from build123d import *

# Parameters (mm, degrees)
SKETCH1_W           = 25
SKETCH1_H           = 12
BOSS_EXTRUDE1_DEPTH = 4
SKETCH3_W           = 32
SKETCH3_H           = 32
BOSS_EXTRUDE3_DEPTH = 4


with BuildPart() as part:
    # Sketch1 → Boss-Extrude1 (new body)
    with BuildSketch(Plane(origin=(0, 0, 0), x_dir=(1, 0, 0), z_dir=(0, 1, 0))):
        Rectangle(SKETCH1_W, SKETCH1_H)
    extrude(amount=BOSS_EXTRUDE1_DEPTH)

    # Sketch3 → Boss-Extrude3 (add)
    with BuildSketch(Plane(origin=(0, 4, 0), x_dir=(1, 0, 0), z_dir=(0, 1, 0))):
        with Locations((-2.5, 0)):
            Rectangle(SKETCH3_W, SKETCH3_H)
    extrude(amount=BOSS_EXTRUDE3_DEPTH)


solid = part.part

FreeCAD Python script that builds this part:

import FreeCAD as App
import Part
import Sketcher

V = App.Vector

doc = App.newDocument("Part")
params = doc.addObject("Spreadsheet::Sheet", "Params")
for row, (alias, value) in enumerate([
    ("sketch1_width", "25 mm"),
    ("sketch1_height", "12 mm"),
    ("pad1_length", "4 mm"),
    ("sketch2_width", "32 mm"),
    ("pad2_length", "4 mm"),
], start=1):
    params.set(f"A{row}", alias)
    params.set(f"B{row}", "=" + value)
    params.setAlias(f"B{row}", alias)

body = doc.addObject("PartDesign::Body", "Body")

# Sketch on XZ plane
sketch1 = body.newObject("Sketcher::SketchObject", "Sketch")
sketch1.AttachmentSupport = (doc.getObject("XZ_Plane"), [""])
sketch1.MapMode = "FlatFace"
sketch1.addGeometry(Part.LineSegment(V(-12, -6, 0), V(-12, 6, 0)), False)
sketch1.addGeometry(Part.LineSegment(V(-12, 6, 0), V(12, 6, 0)), False)
sketch1.addGeometry(Part.LineSegment(V(12, 6, 0), V(12, -6, 0)), False)
sketch1.addGeometry(Part.LineSegment(V(12, -6, 0), V(-12, -6, 0)), False)
sketch1.addConstraint(Sketcher.Constraint("Coincident", 0, 2, 1, 1))
sketch1.addConstraint(Sketcher.Constraint("Coincident", 1, 2, 2, 1))
sketch1.addConstraint(Sketcher.Constraint("Coincident", 2, 2, 3, 1))
sketch1.addConstraint(Sketcher.Constraint("Coincident", 3, 2, 0, 1))
sketch1.addConstraint(Sketcher.Constraint("Vertical", 0))
sketch1.addConstraint(Sketcher.Constraint("Horizontal", 1))
sketch1.addConstraint(Sketcher.Constraint("Vertical", 2))
sketch1.addConstraint(Sketcher.Constraint("Horizontal", 3))
sketch1.addConstraint(Sketcher.Constraint("Symmetric", 0, 2, 2, 2, -1, 1))
sketch1.addConstraint(Sketcher.Constraint("DistanceX", 1, 1, 1, 2, 25.0))
sketch1.addConstraint(Sketcher.Constraint("DistanceY", 0, 1, 0, 2, 12.0))
sketch1.setExpression("Constraints[9]", "Params.sketch1_width")
sketch1.setExpression("Constraints[10]", "Params.sketch1_height")
pad1 = body.newObject("PartDesign::Pad", "Pad")
pad1.Profile = sketch1
pad1.setExpression("Length", "Params.pad1_length")
pad1.Reversed = True

# Sketch on XZ plane
sketch2 = body.newObject("Sketcher::SketchObject", "Sketch001")
sketch2.AttachmentSupport = (doc.getObject("XZ_Plane"), [""])
sketch2.MapMode = "FlatFace"
sketch2.AttachmentOffset = App.Placement(V(0, 0, -4), App.Rotation())
sketch2.addGeometry(Part.LineSegment(V(-18, -16, 0), V(-18, 16, 0)), False)
sketch2.addGeometry(Part.LineSegment(V(-18, 16, 0), V(14, 16, 0)), False)
sketch2.addGeometry(Part.LineSegment(V(14, 16, 0), V(14, -16, 0)), False)
sketch2.addGeometry(Part.LineSegment(V(14, -16, 0), V(-18, -16, 0)), False)
sketch2.addConstraint(Sketcher.Constraint("Coincident", 0, 2, 1, 1))
sketch2.addConstraint(Sketcher.Constraint("Coincident", 1, 2, 2, 1))
sketch2.addConstraint(Sketcher.Constraint("Coincident", 2, 2, 3, 1))
sketch2.addConstraint(Sketcher.Constraint("Coincident", 3, 2, 0, 1))
sketch2.addConstraint(Sketcher.Constraint("Vertical", 0))
sketch2.addConstraint(Sketcher.Constraint("Horizontal", 1))
sketch2.addConstraint(Sketcher.Constraint("Vertical", 2))
sketch2.addConstraint(Sketcher.Constraint("Horizontal", 3))
sketch2.addConstraint(Sketcher.Constraint("Equal", 3, 0))
sketch2.addConstraint(Sketcher.Constraint("DistanceX", 1, 1, 1, 2, 32.0))
sketch2.addConstraint(Sketcher.Constraint("DistanceY", -1, 1, 0, 2, 16.0))
sketch2.addConstraint(Sketcher.Constraint("DistanceX", 0, 2, -1, 1, 18.5))
sketch2.setExpression("Constraints[9]", "Params.sketch2_width")
pad2 = body.newObject("PartDesign::Pad", "Pad001")
pad2.Profile = sketch2
pad2.setExpression("Length", "Params.pad2_length")
pad2.Reversed = True

doc.recompute()
